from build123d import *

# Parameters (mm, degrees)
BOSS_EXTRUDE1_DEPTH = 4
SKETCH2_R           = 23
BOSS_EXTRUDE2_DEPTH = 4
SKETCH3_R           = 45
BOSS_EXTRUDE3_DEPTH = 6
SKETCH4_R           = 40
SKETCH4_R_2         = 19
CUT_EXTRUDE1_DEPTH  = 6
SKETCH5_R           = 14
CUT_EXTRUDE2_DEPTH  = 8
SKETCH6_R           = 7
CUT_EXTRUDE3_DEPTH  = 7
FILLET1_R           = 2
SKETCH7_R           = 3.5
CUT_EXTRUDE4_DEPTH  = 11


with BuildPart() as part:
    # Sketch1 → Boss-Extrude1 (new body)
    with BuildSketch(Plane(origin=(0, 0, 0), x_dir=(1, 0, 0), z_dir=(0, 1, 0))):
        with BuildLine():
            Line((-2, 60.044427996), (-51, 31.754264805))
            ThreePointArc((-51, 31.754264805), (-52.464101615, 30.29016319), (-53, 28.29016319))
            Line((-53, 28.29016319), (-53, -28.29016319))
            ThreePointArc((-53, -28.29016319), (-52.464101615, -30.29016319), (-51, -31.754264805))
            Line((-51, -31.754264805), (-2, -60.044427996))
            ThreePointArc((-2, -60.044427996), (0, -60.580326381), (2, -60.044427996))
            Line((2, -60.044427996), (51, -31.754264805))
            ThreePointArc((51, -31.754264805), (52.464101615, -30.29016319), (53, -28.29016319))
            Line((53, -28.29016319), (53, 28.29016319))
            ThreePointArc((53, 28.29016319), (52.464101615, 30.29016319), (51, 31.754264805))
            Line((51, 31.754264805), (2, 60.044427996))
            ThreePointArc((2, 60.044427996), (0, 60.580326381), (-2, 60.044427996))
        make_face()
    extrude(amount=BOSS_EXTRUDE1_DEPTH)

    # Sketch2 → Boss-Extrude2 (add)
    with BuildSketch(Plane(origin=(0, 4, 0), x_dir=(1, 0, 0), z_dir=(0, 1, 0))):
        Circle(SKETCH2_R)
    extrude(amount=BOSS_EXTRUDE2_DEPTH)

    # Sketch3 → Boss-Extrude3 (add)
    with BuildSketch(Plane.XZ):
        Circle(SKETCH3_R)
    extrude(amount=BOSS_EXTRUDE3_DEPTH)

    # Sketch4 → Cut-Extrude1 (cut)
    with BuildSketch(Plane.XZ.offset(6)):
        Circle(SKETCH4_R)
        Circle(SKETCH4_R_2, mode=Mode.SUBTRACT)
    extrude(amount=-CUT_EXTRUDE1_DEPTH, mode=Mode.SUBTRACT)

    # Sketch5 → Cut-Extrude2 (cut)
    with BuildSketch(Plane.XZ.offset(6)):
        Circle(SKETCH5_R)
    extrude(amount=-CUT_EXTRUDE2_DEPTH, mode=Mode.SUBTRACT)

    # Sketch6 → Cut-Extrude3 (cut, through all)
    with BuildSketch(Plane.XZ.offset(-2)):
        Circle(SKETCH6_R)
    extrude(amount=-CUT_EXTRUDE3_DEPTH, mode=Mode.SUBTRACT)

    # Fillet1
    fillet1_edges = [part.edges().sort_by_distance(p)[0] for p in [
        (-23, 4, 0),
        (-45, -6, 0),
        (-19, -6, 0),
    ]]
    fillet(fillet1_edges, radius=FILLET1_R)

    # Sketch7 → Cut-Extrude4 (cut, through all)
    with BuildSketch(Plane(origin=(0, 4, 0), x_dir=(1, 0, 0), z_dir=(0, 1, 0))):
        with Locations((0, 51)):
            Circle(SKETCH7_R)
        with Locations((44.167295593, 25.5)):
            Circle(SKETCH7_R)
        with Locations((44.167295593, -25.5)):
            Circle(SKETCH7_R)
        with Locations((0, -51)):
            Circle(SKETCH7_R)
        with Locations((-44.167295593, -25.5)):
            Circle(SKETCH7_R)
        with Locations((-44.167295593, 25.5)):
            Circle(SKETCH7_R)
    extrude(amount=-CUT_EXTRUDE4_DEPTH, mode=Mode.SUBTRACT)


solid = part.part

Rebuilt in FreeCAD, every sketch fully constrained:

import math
import FreeCAD as App
import Part
import Sketcher
Q = App.Units.Quantity


def edges_at(feature, points):
    """Names of the edges that pass closest to the given points."""
    edges = feature.Shape.Edges
    near = lambda p: min(range(len(edges)), key=lambda i: edges[i].distToShape(Part.Vertex(*p))[0])
    return sorted({f"Edge{near(p) + 1}" for p in points})

doc = App.newDocument("Part")
body = doc.addObject("PartDesign::Body", "Body")

sketch1 = doc.addObject("Sketcher::SketchObject", "Sketch")
body.addObject(sketch1)
sketch1.AttachmentSupport = (doc.XZ_Plane, [""])
sketch1.MapMode = "FlatFace"
sketch1.addGeometry([
    Part.LineSegment(App.Vector(-2, -60.044428, 0), App.Vector(-51, -31.754265, 0)),
    Part.ArcOfCircle(Part.Circle(App.Vector(-49, -28.290163, 0), App.Vector(0, 0, 1), 4), math.radians(180), math.radians(240)),
    Part.LineSegment(App.Vector(-53, -28.290163, 0), App.Vector(-53, 28.290163, 0)),
    Part.ArcOfCircle(Part.Circle(App.Vector(-49, 28.290163, 0), App.Vector(0, 0, 1), 4), math.radians(120), math.radians(180)),
    Part.LineSegment(App.Vector(-51, 31.754265, 0), App.Vector(-2, 60.044428, 0)),
    Part.ArcOfCircle(Part.Circle(App.Vector(0, 56.580326, 0), App.Vector(0, 0, 1), 4), math.radians(60), math.radians(120)),
    Part.LineSegment(App.Vector(2, 60.044428, 0), App.Vector(51, 31.754265, 0)),
    Part.ArcOfCircle(Part.Circle(App.Vector(49, 28.290163, 0), App.Vector(0, 0, 1), 4), math.radians(0), math.radians(60)),
    Part.LineSegment(App.Vector(53, 28.290163, 0), App.Vector(53, -28.290163, 0)),
    Part.ArcOfCircle(Part.Circle(App.Vector(49, -28.290163, 0), App.Vector(0, 0, 1), 4), math.radians(-60), math.radians(0)),
    Part.LineSegment(App.Vector(51, -31.754265, 0), App.Vector(2, -60.044428, 0)),
    Part.ArcOfCircle(Part.Circle(App.Vector(0, -56.580326, 0), App.Vector(0, 0, 1), 4), math.radians(-120), math.radians(-60)),
], False)
sketch1.addConstraint([
    Sketcher.Constraint("Tangent", 0, 2, 1, 2),
    Sketcher.Constraint("Tangent", 1, 1, 2, 1),
    Sketcher.Constraint("Tangent", 2, 2, 3, 2),
    Sketcher.Constraint("Tangent", 3, 1, 4, 1),
    Sketcher.Constraint("Tangent", 4, 2, 5, 2),
    Sketcher.Constraint("Tangent", 5, 1, 6, 1),
    Sketcher.Constraint("Tangent", 6, 2, 7, 2),
    Sketcher.Constraint("Tangent", 7, 1, 8, 1),
    Sketcher.Constraint("Tangent", 8, 2, 9, 2),
    Sketcher.Constraint("Tangent", 9, 1, 10, 1),
    Sketcher.Constraint("Tangent", 10, 2, 11, 2),
    Sketcher.Constraint("Tangent", 11, 1, 0, 1),
    Sketcher.Constraint("Vertical", 2),
    Sketcher.Constraint("Vertical", 8),
    Sketcher.Constraint("Equal", 1, 3),
    Sketcher.Constraint("Equal", 3, 5),
    Sketcher.Constraint("Equal", 5, 7),
    Sketcher.Constraint("Equal", 7, 9),
    Sketcher.Constraint("Equal", 9, 11),
    Sketcher.Constraint("Symmetric", 1, 3, 7, 3, -1, 1),
    Sketcher.Constraint("Symmetric", 5, 3, 11, 3, -1, 1),
    Sketcher.Constraint("Symmetric", 4, 2, 5, 1, -2),
    Sketcher.Constraint("Parallel", 4, 10),
    Sketcher.Constraint("Radius", 1, 4.0),
    Sketcher.Constraint("Angle", 0, Q("150 deg")),
    Sketcher.Constraint("DistanceX", 1, 3, -1, 1, 49.0),
    Sketcher.Constraint("DistanceY", 2, 1, 2, 2, 56.580326),
])
pad1 = doc.addObject("PartDesign::Pad", "Pad")
body.addObject(pad1)
pad1.Profile = sketch1
pad1.Length = 4
pad1.Reversed = True

sketch2 = doc.addObject("Sketcher::SketchObject", "Sketch001")
body.addObject(sketch2)
sketch2.AttachmentSupport = (doc.XZ_Plane, [""])
sketch2.MapMode = "FlatFace"
sketch2.AttachmentOffset = App.Placement(App.Vector(0, 0, -4), App.Rotation())
sketch2.addGeometry(Part.Circle(App.Vector(0, 0, 0), App.Vector(0, 0, 1), 23), False)
sketch2.addConstraint([
    Sketcher.Constraint("Coincident", 0, 3, -1, 1),
    Sketcher.Constraint("Diameter", 0, 46.0),
])
pad2 = doc.addObject("PartDesign::Pad", "Pad001")
body.addObject(pad2)
pad2.Profile = sketch2
pad2.Length = 4
pad2.Reversed = True

sketch3 = doc.addObject("Sketcher::SketchObject", "Sketch002")
body.addObject(sketch3)
sketch3.AttachmentSupport = (doc.XZ_Plane, [""])
sketch3.MapMode = "FlatFace"
sketch3.addGeometry(Part.Circle(App.Vector(0, 0, 0), App.Vector(0, 0, 1), 45), False)
sketch3.addConstraint([
    Sketcher.Constraint("Coincident", 0, 3, -1, 1),
    Sketcher.Constraint("Diameter", 0, 90.0),
])
pad3 = doc.addObject("PartDesign::Pad", "Pad002")
body.addObject(pad3)
pad3.Profile = sketch3
pad3.Length = 6

sketch4 = doc.addObject("Sketcher::SketchObject", "Sketch003")
body.addObject(sketch4)
sketch4.AttachmentSupport = (doc.XZ_Plane, [""])
sketch4.MapMode = "FlatFace"
sketch4.AttachmentOffset = App.Placement(App.Vector(0, 0, 6), App.Rotation())
sketch4.addGeometry([
    Part.Circle(App.Vector(0, 0, 0), App.Vector(0, 0, 1), 40),
    Part.Circle(App.Vector(0, 0, 0), App.Vector(0, 0, 1), 19),
], False)
sketch4.addConstraint([
    Sketcher.Constraint("Coincident", 0, 3, -1, 1),
    Sketcher.Constraint("Coincident", 1, 3, -1, 1),
    Sketcher.Constraint("Diameter", 0, 80.0),
    Sketcher.Constraint("Diameter", 1, 38.0),
])
pocket1 = doc.addObject("PartDesign::Pocket", "Pocket")
body.addObject(pocket1)
pocket1.Profile = sketch4
pocket1.Length = 6

sketch5 = doc.addObject("Sketcher::SketchObject", "Sketch004")
body.addObject(sketch5)
sketch5.AttachmentSupport = (doc.XZ_Plane, [""])
sketch5.MapMode = "FlatFace"
sketch5.AttachmentOffset = App.Placement(App.Vector(0, 0, 6), App.Rotation())
sketch5.addGeometry(Part.Circle(App.Vector(0, 0, 0), App.Vector(0, 0, 1), 14), False)
sketch5.addConstraint([
    Sketcher.Constraint("Coincident", 0, 3, -1, 1),
    Sketcher.Constraint("Diameter", 0, 28.0),
])
pocket2 = doc.addObject("PartDesign::Pocket", "Pocket001")
body.addObject(pocket2)
pocket2.Profile = sketch5
pocket2.Length = 8

sketch6 = doc.addObject("Sketcher::SketchObject", "Sketch005")
body.addObject(sketch6)
sketch6.AttachmentSupport = (doc.XZ_Plane, [""])
sketch6.MapMode = "FlatFace"
sketch6.AttachmentOffset = App.Placement(App.Vector(0, 0, -2), App.Rotation())
sketch6.addGeometry(Part.Circle(App.Vector(0, 0, 0), App.Vector(0, 0, 1), 7), False)
sketch6.addConstraint([
    Sketcher.Constraint("Coincident", 0, 3, -1, 1),
    Sketcher.Constraint("Diameter", 0, 14.0),
])
pocket3 = doc.addObject("PartDesign::Pocket", "Pocket002")
body.addObject(pocket3)
pocket3.Profile = sketch6
pocket3.Type = "ThroughAll"
doc.recompute()

fillet = doc.addObject("PartDesign::Fillet", "Fillet")
body.addObject(fillet)
fillet.Base = (pocket3, edges_at(pocket3, [(-23, 4, 0), (-45, -6, 0), (-19, -6, 0)]))
fillet.Radius = 2

sketch7 = doc.addObject("Sketcher::SketchObject", "Sketch006")
body.addObject(sketch7)
sketch7.AttachmentSupport = (doc.XZ_Plane, [""])
sketch7.MapMode = "FlatFace"
sketch7.AttachmentOffset = App.Placement(App.Vector(0, 0, -4), App.Rotation())
sketch7.addGeometry([
    Part.Circle(App.Vector(0, -51, 0), App.Vector(0, 0, 1), 3.5),
    Part.Circle(App.Vector(44.167296, -25.5, 0), App.Vector(0, 0, 1), 3.5),
    Part.Circle(App.Vector(44.167296, 25.5, 0), App.Vector(0, 0, 1), 3.5),
    Part.Circle(App.Vector(0, 51, 0), App.Vector(0, 0, 1), 3.5),
    Part.Circle(App.Vector(-44.167296, 25.5, 0), App.Vector(0, 0, 1), 3.5),
    Part.Circle(App.Vector(-44.167296, -25.5, 0), App.Vector(0, 0, 1), 3.5),
], False)
sketch7.addConstraint([
    Sketcher.Constraint("Equal", 0, 1),
    Sketcher.Constraint("Equal", 1, 2),
    Sketcher.Constraint("Equal", 2, 3),
    Sketcher.Constraint("Equal", 3, 4),
    Sketcher.Constraint("Equal", 4, 5),
    Sketcher.Constraint("Symmetric", 0, 3, 3, 3, -1, 1),
    Sketcher.Constraint("Symmetric", 1, 3, 4, 3, -1, 1),
    Sketcher.Constraint("Symmetric", 2, 3, 5, 3, -1, 1),
    Sketcher.Constraint("Symmetric", 2, 3, 4, 3, -2),
    Sketcher.Constraint("PointOnObject", 0, 3, -2),
    Sketcher.Constraint("Diameter", 0, 7.0),
    Sketcher.Constraint("DistanceY", 0, 3, -1, 1, 51.0),
    Sketcher.Constraint("DistanceY", 1, 3, 2, 3, 51.0),
    Sketcher.Constraint("DistanceX", 4, 3, 2, 3, 88.334591),
])
pocket4 = doc.addObject("PartDesign::Pocket", "Pocket003")
body.addObject(pocket4)
pocket4.Profile = sketch7
pocket4.Type = "ThroughAll"
pocket4.Reversed = True

doc.recompute()
